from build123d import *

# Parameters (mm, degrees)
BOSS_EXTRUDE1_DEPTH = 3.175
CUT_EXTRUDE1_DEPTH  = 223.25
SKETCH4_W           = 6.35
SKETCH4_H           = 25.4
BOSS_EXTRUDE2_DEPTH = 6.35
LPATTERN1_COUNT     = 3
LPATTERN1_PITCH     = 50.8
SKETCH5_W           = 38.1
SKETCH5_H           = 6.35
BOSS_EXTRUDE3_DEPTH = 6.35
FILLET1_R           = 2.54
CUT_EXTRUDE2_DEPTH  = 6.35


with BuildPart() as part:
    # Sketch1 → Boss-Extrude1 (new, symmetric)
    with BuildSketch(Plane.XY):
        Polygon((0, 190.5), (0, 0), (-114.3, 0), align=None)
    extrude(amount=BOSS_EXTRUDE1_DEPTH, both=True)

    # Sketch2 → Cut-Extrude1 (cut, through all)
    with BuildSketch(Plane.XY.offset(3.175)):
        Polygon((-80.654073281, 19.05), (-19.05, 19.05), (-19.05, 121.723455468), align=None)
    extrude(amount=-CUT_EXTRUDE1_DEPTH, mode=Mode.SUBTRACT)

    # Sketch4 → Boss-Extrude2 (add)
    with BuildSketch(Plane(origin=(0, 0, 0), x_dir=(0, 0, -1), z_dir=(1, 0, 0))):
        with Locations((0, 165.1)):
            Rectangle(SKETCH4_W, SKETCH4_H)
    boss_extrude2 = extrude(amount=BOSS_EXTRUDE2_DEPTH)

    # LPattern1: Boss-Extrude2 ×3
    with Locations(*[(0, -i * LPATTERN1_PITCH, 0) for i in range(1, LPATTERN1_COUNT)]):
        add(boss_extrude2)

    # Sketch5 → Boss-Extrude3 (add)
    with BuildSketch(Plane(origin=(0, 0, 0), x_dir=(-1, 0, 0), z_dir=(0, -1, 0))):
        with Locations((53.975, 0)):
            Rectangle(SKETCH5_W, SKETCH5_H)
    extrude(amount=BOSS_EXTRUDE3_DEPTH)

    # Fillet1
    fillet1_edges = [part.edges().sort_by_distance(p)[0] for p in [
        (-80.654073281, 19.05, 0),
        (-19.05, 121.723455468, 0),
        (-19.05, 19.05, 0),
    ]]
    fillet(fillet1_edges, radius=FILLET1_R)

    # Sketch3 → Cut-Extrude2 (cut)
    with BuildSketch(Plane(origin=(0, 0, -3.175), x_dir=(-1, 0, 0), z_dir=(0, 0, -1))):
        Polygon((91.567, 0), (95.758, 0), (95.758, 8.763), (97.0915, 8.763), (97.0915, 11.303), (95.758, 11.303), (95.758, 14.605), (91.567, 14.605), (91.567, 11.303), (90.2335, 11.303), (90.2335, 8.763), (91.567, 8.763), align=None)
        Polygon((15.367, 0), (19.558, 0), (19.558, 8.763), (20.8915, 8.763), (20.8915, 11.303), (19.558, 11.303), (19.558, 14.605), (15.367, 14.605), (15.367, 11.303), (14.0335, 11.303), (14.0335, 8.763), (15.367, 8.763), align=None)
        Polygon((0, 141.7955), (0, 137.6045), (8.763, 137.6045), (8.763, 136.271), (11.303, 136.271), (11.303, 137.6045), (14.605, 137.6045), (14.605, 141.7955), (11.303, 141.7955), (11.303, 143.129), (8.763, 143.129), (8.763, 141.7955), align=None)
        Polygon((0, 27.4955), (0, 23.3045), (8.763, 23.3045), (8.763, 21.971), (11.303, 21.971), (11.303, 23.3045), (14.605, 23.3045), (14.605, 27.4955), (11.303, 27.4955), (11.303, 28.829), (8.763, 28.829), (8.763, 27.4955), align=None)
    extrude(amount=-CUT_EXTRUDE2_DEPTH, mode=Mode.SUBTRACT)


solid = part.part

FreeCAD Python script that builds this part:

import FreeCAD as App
import Part
import Sketcher

V = App.Vector
Q = App.Units.Quantity


def edges_at(feature, points):
    """Names of the edges that pass closest to the given points."""
    edges = feature.Shape.Edges
    near = lambda p: min(range(len(edges)), key=lambda i: edges[i].distToShape(Part.Vertex(*p))[0])
    return sorted({f"Edge{near(p) + 1}" for p in points})


def add_polygon(sketch, points):
    """Adds a closed chain of lines whose ends are joined by coincident constraints."""
    first, n = sketch.GeometryCount, len(points)
    for a, b in zip(points, points[1:] + points[:1]):
        sketch.addGeometry(Part.LineSegment(App.Vector(*a, 0), App.Vector(*b, 0)), False)
    for i in range(n):
        sketch.addConstraint(Sketcher.Constraint("Coincident", first + i, 2, first + (i + 1) % n, 1))

doc = App.newDocument("Part")
body = doc.addObject("PartDesign::Body", "Body")

sketch1 = body.newObject("Sketcher::SketchObject", "Sketch")
sketch1.AttachmentSupport = (doc.getObject("XY_Plane"), [""])
sketch1.MapMode = "FlatFace"
add_polygon(sketch1, [(0, 0), (0, 190.5), (-114.3, 0)])
sketch1.addConstraint([
    Sketcher.Constraint("Vertical", 0),
    Sketcher.Constraint("Horizontal", 2),
    Sketcher.Constraint("Coincident", 2, 2, -1, 1),
    Sketcher.Constraint("DistanceX", 2, 1, 2, 2, Q("4.5 in")),
    Sketcher.Constraint("DistanceY", 0, 1, 0, 2, Q("7.5 in")),
])
pad1 = body.newObject("PartDesign::Pad", "Pad")
pad1.Profile = sketch1
pad1.Length = Q("0.25 in")
pad1.Midplane = True

sketch2 = body.newObject("Sketcher::SketchObject", "Sketch001")
sketch2.AttachmentSupport = (doc.getObject("XY_Plane"), [""])
sketch2.MapMode = "FlatFace"
sketch2.AttachmentOffset = App.Placement(V(0, 0, 0.125 * 25.4), App.Rotation())
add_polygon(sketch2, [(-80.654073, 19.05), (-19.05, 19.05), (-19.05, 121.723455)])
sketch2.addConstraint([
    Sketcher.Constraint("Horizontal", 0),
    Sketcher.Constraint("Vertical", 1),
    Sketcher.Constraint("DistanceX", 0, 2, -1, 1, Q("0.75 in")),
    Sketcher.Constraint("DistanceY", -1, 1, 0, 2, Q("0.75 in")),
    Sketcher.Constraint("DistanceX", 0, 1, 0, 2, 61.604073),
    Sketcher.Constraint("DistanceY", 1, 1, 1, 2, 102.673455),
])
pocket1 = body.newObject("PartDesign::Pocket", "Pocket")
pocket1.Profile = sketch2
pocket1.Type = "ThroughAll"

sketch3 = body.newObject("Sketcher::SketchObject", "Sketch002")
sketch3.AttachmentSupport = (doc.getObject("YZ_Plane"), [""])
sketch3.MapMode = "FlatFace"
add_polygon(sketch3, [(177.8, 3.175), (152.4, 3.175), (152.4, -3.175), (177.8, -3.175)])
sketch3.addConstraint([
    Sketcher.Constraint("Horizontal", 0),
    Sketcher.Constraint("Vertical", 1),
    Sketcher.Constraint("Horizontal", 2),
    Sketcher.Constraint("Vertical", 3),
    Sketcher.Constraint("DistanceX", 0, 2, 0, 1, Q("1 in")),
    Sketcher.Constraint("DistanceX", -1, 1, 0, 2, Q("6 in")),
    Sketcher.Constraint("DistanceY", 1, 2, 1, 1, Q("0.25 in")),
    Sketcher.Constraint("DistanceY", -1, 1, 0, 2, Q("0.125 in")),
])
pad2 = body.newObject("PartDesign::Pad", "Pad001")
pad2.Profile = sketch3
pad2.Length = Q("0.25 in")
doc.recompute()

linearpattern = body.newObject("PartDesign::LinearPattern", "LinearPattern")
linearpattern.Originals = [pad2]
linearpattern.Direction = (doc.getObject("Y_Axis"), [""])
linearpattern.Mode = "offset"
linearpattern.Offset = Q("2 in")
linearpattern.Occurrences = 3
linearpattern.Reversed = True
body.Tip = linearpattern

sketch4 = body.newObject("Sketcher::SketchObject", "Sketch003")
sketch4.AttachmentSupport = (doc.getObject("XZ_Plane"), [""])
sketch4.MapMode = "FlatFace"
add_polygon(sketch4, [(-34.925, -3.175), (-34.925, 3.175), (-73.025, 3.175), (-73.025, -3.175)])
sketch4.addConstraint([
    Sketcher.Constraint("Vertical", 0),
    Sketcher.Constraint("Horizontal", 1),
    Sketcher.Constraint("Vertical", 2),
    Sketcher.Constraint("Horizontal", 3),
    Sketcher.Constraint("DistanceX", 1, 2, 1, 1, Q("1.5 in")),
    Sketcher.Constraint("DistanceY", 0, 1, 0, 2, Q("0.25 in")),
    Sketcher.Constraint("DistanceX", 0, 2, -1, 1, Q("1.375 in")),
    Sketcher.Constraint("DistanceY", -1, 1, 0, 2, Q("0.125 in")),
])
pad3 = body.newObject("PartDesign::Pad", "Pad002")
pad3.Profile = sketch4
pad3.Length = Q("0.25 in")
doc.recompute()

fillet = body.newObject("PartDesign::Fillet", "Fillet")
fillet.Base = (pad3, edges_at(pad3, [(-80.654, 19.05, 0), (-19.05, 121.723, 0), (-19.05, 19.05, 0)]))
fillet.Radius = Q("0.1 in")

sketch5 = body.newObject("Sketcher::SketchObject", "Sketch004")
sketch5.AttachmentSupport = (doc.getObject("XY_Plane"), [""])
sketch5.MapMode = "FlatFace"
sketch5.AttachmentOffset = App.Placement(V(0, 0, -0.125 * 25.4), App.Rotation())
add_polygon(sketch5, [(-91.567, 0), (-95.758, 0), (-95.758, 8.763), (-97.0915, 8.763), (-97.0915, 11.303), (-95.758, 11.303), (-95.758, 14.605), (-91.567, 14.605), (-91.567, 11.303), (-90.2335, 11.303), (-90.2335, 8.763), (-91.567, 8.763)])
add_polygon(sketch5, [(-15.367, 0), (-19.558, 0), (-19.558, 8.763), (-20.8915, 8.763), (-20.8915, 11.303), (-19.558, 11.303), (-19.558, 14.605), (-15.367, 14.605), (-15.367, 11.303), (-14.0335, 11.303), (-14.0335, 8.763), (-15.367, 8.763)])
add_polygon(sketch5, [(0, 141.7955), (0, 137.6045), (-8.763, 137.6045), (-8.763, 136.271), (-11.303, 136.271), (-11.303, 137.6045), (-14.605, 137.6045), (-14.605, 141.7955), (-11.303, 141.7955), (-11.303, 143.129), (-8.763, 143.129), (-8.763, 141.7955)])
add_polygon(sketch5, [(0, 27.4955), (0, 23.3045), (-8.763, 23.3045), (-8.763, 21.971), (-11.303, 21.971), (-11.303, 23.3045), (-14.605, 23.3045), (-14.605, 27.4955), (-11.303, 27.4955), (-11.303, 28.829), (-8.763, 28.829), (-8.763, 27.4955)])
sketch5.addConstraint([
    Sketcher.Constraint("Horizontal", 0),
    Sketcher.Constraint("Vertical", 1),
    Sketcher.Constraint("Horizontal", 2),
    Sketcher.Constraint("Vertical", 3),
    Sketcher.Constraint("Horizontal", 4),
    Sketcher.Constraint("Vertical", 5),
    Sketcher.Constraint("Horizontal", 6),
    Sketcher.Constraint("Vertical", 7),
    Sketcher.Constraint("Horizontal", 8),
    Sketcher.Constraint("Vertical", 9),
    Sketcher.Constraint("Horizontal", 10),
    Sketcher.Constraint("Vertical", 11),
    Sketcher.Constraint("Horizontal", 12),
    Sketcher.Constraint("Vertical", 13),
    Sketcher.Constraint("Horizontal", 14),
    Sketcher.Constraint("Vertical", 15),
    Sketcher.Constraint("Horizontal", 16),
    Sketcher.Constraint("Vertical", 17),
    Sketcher.Constraint("Horizontal", 18),
    Sketcher.Constraint("Vertical", 19),
    Sketcher.Constraint("Horizontal", 20),
    Sketcher.Constraint("Vertical", 21),
    Sketcher.Constraint("Horizontal", 22),
    Sketcher.Constraint("Vertical", 23),
    Sketcher.Constraint("Vertical", 24),
    Sketcher.Constraint("Horizontal", 25),
    Sketcher.Constraint("Vertical", 26),
    Sketcher.Constraint("Horizontal", 27),
    Sketcher.Constraint("Vertical", 28),
    Sketcher.Constraint("Horizontal", 29),
    Sketcher.Constraint("Vertical", 30),
    Sketcher.Constraint("Horizontal", 31),
    Sketcher.Constraint("Vertical", 32),
    Sketcher.Constraint("Horizontal", 33),
    Sketcher.Constraint("Vertical", 34),
    Sketcher.Constraint("Horizontal", 35),
    Sketcher.Constraint("Vertical", 36),
    Sketcher.Constraint("Horizontal", 37),
    Sketcher.Constraint("Vertical", 38),
    Sketcher.Constraint("Horizontal", 39),
    Sketcher.Constraint("Vertical", 40),
    Sketcher.Constraint("Horizontal", 41),
    Sketcher.Constraint("Vertical", 42),
    Sketcher.Constraint("Horizontal", 43),
    Sketcher.Constraint("Vertical", 44),
    Sketcher.Constraint("Horizontal", 45),
    Sketcher.Constraint("Vertical", 46),
    Sketcher.Constraint("Horizontal", 47),
    Sketcher.Constraint("PointOnObject", 0, 2, -1),
    Sketcher.Constraint("PointOnObject", 12, 2, -1),
    Sketcher.Constraint("PointOnObject", 24, 2, -2),
    Sketcher.Constraint("PointOnObject", 36, 2, -2),
    Sketcher.Constraint("Horizontal", 4, 2, 7, 2),
    Sketcher.Constraint("Horizontal", 2, 2, 9, 2),
    Sketcher.Constraint("Horizontal", 10, 2, 13, 2),
    Sketcher.Constraint("Horizontal", 8, 2, 15, 2),
    Sketcher.Constraint("Horizontal", 6, 2, 17, 2),
    Sketcher.Constraint("Horizontal", 16, 2, 19, 2),
    Sketcher.Constraint("Horizontal", 14, 2, 21, 2),
    Sketcher.Constraint("Horizontal", 25, 2, 28, 2),
    Sketcher.Constraint("Horizontal", 31, 2, 34, 2),
    Sketcher.Constraint("Horizontal", 37, 2, 40, 2),
    Sketcher.Constraint("Horizontal", 43, 2, 46, 2),
    Sketcher.Constraint("Vertical", 1, 2, 4, 2),
    Sketcher.Constraint("Vertical", 7, 2, 10, 2),
    Sketcher.Constraint("Vertical", 13, 2, 16, 2),
    Sketcher.Constraint("Vertical", 19, 2, 22, 2),
    Sketcher.Constraint("Vertical", 28, 2, 31, 2),
    Sketcher.Constraint("Vertical", 26, 2, 33, 2),
    Sketcher.Constraint("Vertical", 34, 2, 37, 2),
    Sketcher.Constraint("Vertical", 32, 2, 39, 2),
    Sketcher.Constraint("Vertical", 30, 2, 41, 2),
    Sketcher.Constraint("Vertical", 40, 2, 43, 2),
    Sketcher.Constraint("Vertical", 38, 2, 45, 2),
    Sketcher.Constraint("Equal", 4, 8),
    Sketcher.Constraint("Equal", 6, 12),
    Sketcher.Constraint("Equal", 10, 14),
    Sketcher.Constraint("Equal", 16, 20),
    Sketcher.Constraint("Equal", 47, 1),
    Sketcher.Constraint("Equal", 45, 3),
    Sketcher.Constraint("Equal", 43, 5),
    Sketcher.Constraint("Equal", 18, 24),
    Sketcher.Constraint("Equal", 22, 26),
    Sketcher.Constraint("Equal", 28, 32),
    Sketcher.Constraint("Equal", 30, 36),
    Sketcher.Constraint("Equal", 34, 38),
    Sketcher.Constraint("Equal", 40, 44),
    Sketcher.Constraint("DistanceX", 27, 2, 27, 1, Q("0.1 in")),
    Sketcher.Constraint("DistanceX", 29, 2, 29, 1, Q("0.13 in")),
    Sketcher.Constraint("DistanceX", 0, 2, 0, 1, Q("0.165 in")),
    Sketcher.Constraint("DistanceX", 25, 2, 25, 1, Q("0.345 in")),
    Sketcher.Constraint("DistanceX", 0, 2, -1, 1, Q("3.77 in")),
    Sketcher.Constraint("DistanceX", 12, 2, -1, 1, Q("0.77 in")),
    Sketcher.Constraint("DistanceX", 9, 2, 14, 2, Q("2.73 in")),
    Sketcher.Constraint("DistanceY", 18, 2, 26, 2, Q("4.79 in")),
    Sketcher.Constraint("DistanceY", 18, 2, 38, 2, Q("0.29 in")),
])
pocket2 = body.newObject("PartDesign::Pocket", "Pocket001")
pocket2.Profile = sketch5
pocket2.Length = Q("0.25 in")
pocket2.Reversed = True

doc.recompute()
